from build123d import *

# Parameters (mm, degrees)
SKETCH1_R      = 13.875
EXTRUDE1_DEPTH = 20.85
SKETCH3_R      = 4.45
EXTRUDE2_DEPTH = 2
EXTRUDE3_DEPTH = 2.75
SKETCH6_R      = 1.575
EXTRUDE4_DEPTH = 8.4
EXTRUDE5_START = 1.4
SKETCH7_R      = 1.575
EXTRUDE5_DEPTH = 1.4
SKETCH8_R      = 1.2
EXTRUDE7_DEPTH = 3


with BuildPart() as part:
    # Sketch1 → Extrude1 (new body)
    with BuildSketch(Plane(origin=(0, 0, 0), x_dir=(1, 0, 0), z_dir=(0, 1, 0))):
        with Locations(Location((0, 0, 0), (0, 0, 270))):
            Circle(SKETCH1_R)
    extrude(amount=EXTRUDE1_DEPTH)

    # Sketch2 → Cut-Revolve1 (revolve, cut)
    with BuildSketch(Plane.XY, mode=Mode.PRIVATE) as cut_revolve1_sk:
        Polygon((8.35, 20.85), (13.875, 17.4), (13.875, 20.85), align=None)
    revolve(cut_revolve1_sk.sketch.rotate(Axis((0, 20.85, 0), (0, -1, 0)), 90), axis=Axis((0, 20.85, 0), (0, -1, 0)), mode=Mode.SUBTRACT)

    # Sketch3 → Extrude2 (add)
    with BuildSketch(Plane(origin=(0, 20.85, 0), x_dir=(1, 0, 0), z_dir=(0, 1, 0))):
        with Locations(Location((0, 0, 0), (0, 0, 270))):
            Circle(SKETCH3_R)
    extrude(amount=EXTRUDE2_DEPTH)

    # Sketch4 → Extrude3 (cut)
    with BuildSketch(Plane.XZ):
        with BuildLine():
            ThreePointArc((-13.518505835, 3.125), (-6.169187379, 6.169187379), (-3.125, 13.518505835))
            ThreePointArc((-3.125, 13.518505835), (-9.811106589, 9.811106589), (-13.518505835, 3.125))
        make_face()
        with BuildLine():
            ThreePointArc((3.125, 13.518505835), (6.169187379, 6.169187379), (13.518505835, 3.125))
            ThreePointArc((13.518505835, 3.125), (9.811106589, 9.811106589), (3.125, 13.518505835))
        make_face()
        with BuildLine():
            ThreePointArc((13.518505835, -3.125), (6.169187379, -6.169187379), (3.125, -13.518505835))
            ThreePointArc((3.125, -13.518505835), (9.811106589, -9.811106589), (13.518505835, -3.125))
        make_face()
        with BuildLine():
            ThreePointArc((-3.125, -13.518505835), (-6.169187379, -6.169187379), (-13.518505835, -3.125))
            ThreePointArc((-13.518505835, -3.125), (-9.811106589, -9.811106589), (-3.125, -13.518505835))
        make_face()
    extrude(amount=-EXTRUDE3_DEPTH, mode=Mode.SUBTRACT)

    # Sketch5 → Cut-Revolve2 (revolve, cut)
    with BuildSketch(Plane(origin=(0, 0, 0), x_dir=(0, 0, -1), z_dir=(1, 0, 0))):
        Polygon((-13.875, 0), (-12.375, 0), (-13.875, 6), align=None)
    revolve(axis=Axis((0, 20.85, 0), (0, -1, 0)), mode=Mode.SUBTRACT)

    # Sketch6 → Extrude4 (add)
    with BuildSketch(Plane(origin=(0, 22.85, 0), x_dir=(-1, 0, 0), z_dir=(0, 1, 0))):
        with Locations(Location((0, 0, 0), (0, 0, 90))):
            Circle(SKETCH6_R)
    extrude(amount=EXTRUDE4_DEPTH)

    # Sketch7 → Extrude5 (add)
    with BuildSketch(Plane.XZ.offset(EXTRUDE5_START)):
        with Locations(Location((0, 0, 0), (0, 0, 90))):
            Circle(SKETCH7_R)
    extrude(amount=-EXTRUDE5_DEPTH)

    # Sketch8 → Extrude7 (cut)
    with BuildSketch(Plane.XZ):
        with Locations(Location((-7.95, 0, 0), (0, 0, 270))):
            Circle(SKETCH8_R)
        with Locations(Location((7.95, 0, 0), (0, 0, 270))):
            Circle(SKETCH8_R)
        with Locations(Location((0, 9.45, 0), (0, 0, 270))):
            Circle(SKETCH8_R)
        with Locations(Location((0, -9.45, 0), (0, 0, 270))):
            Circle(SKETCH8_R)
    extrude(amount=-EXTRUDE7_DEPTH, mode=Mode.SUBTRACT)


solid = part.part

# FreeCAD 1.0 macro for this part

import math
import FreeCAD as App
import Part
import Sketcher
from FreeCAD import Vector

doc = App.newDocument("Part")
body = doc.addObject("PartDesign::Body", "Body")

# Sketch on XZ plane
sketch1 = body.newObject("Sketcher::SketchObject", "Sketch")
sketch1.AttachmentSupport = (doc.getObject("XZ_Plane"), [""])
sketch1.MapMode = "FlatFace"
sketch1.addGeometry(Part.Circle(Vector(0, 0, 0), Vector(0, 0, 1), 14), False)
sketch1.addConstraint([
    Sketcher.Constraint("Coincident", 0, 3, -1, 1),
    Sketcher.Constraint("Diameter", 0, 27.75),
])
pad1 = body.newObject("PartDesign::Pad", "Pad")
pad1.Profile = sketch1
pad1.Length = 20.85
pad1.Reversed = True

# Sketch on XY plane
sketch2 = body.newObject("Sketcher::SketchObject", "Sketch001")
sketch2.AttachmentSupport = (doc.getObject("XY_Plane"), [""])
sketch2.MapMode = "FlatFace"
sketch2.addGeometry([
    Part.LineSegment(Vector(8.3, 20.9, 0), Vector(13.9, 17.4, 0)),
    Part.LineSegment(Vector(13.9, 17.4, 0), Vector(13.9, 20.9, 0)),
    Part.LineSegment(Vector(13.9, 20.9, 0), Vector(8.3, 20.9, 0)),
], False)
sketch2.addConstraint([
    Sketcher.Constraint("Coincident", 0, 2, 1, 1),
    Sketcher.Constraint("Coincident", 1, 2, 2, 1),
    Sketcher.Constraint("Coincident", 2, 2, 0, 1),
    Sketcher.Constraint("Vertical", 1),
    Sketcher.Constraint("Horizontal", 2),
    Sketcher.Constraint("DistanceY", 1, 1, 1, 2, 3.45),
    Sketcher.Constraint("DistanceY", -1, 1, 0, 2, 17.4),
    Sketcher.Constraint("DistanceX", 2, 2, 2, 1, 5.525),
    Sketcher.Constraint("DistanceX", -1, 1, 2, 2, 8.35),
])
groove = body.newObject("PartDesign::Groove", "Groove")
groove.Profile = sketch2
groove.ReferenceAxis = (sketch2, ["V_Axis"])
groove.Angle = 360

# Sketch on XZ plane
sketch3 = body.newObject("Sketcher::SketchObject", "Sketch002")
sketch3.AttachmentSupport = (doc.getObject("XZ_Plane"), [""])
sketch3.MapMode = "FlatFace"
sketch3.AttachmentOffset = App.Placement(Vector(0, 0, -20.85), App.Rotation())
sketch3.addGeometry(Part.Circle(Vector(0, 0, 0), Vector(0, 0, 1), 4.5), False)
sketch3.addConstraint([
    Sketcher.Constraint("Coincident", 0, 3, -1, 1),
    Sketcher.Constraint("Diameter", 0, 8.9),
])
pad2 = body.newObject("PartDesign::Pad", "Pad001")
pad2.Profile = sketch3
pad2.Length = 2
pad2.Reversed = True

# Sketch on XZ plane
sketch4 = body.newObject("Sketcher::SketchObject", "Sketch003")
sketch4.AttachmentSupport = (doc.getObject("XZ_Plane"), [""])
sketch4.MapMode = "FlatFace"
sketch4.addGeometry([
    Part.ArcOfCircle(Part.Circle(Vector(-14, 14, 0), Vector(0, 0, 1), 10), math.radians(-90), math.radians(0)),  # 0
    Part.ArcOfCircle(Part.Circle(Vector(0, 0, 0), Vector(0, 0, 1), 14), math.radians(103), math.radians(167)),  # 1
    Part.ArcOfCircle(Part.Circle(Vector(14, 14, 0), Vector(0, 0, 1), 10), math.radians(-180), math.radians(-90)),  # 2
    Part.ArcOfCircle(Part.Circle(Vector(0, 0, 0), Vector(0, 0, 1), 14), math.radians(13), math.radians(77)),  # 3
    Part.ArcOfCircle(Part.Circle(Vector(14, -14, 0), Vector(0, 0, 1), 10), math.radians(90), math.radians(180)),  # 4
    Part.ArcOfCircle(Part.Circle(Vector(0, 0, 0), Vector(0, 0, 1), 14), math.radians(-77), math.radians(-13)),  # 5
    Part.ArcOfCircle(Part.Circle(Vector(-14, -14, 0), Vector(0, 0, 1), 10), math.radians(0), math.radians(90)),  # 6
    Part.ArcOfCircle(Part.Circle(Vector(0, 0, 0), Vector(0, 0, 1), 14), math.radians(-167), math.radians(-103)),  # 7
], False)
sketch4.addConstraint([
    Sketcher.Constraint("Coincident", 0, 1, 1, 2),
    Sketcher.Constraint("Coincident", 1, 1, 0, 2),
    Sketcher.Constraint("Coincident", 2, 1, 3, 2),
    Sketcher.Constraint("Coincident", 3, 1, 2, 2),
    Sketcher.Constraint("Coincident", 4, 1, 5, 2),
    Sketcher.Constraint("Coincident", 5, 1, 4, 2),
    Sketcher.Constraint("Coincident", 6, 1, 7, 2),
    Sketcher.Constraint("Coincident", 7, 1, 6, 2),
    Sketcher.Constraint("Coincident", 1, 3, -1, 1),
    Sketcher.Constraint("Coincident", 3, 3, -1, 1),
    Sketcher.Constraint("Coincident", 5, 3, -1, 1),
    Sketcher.Constraint("Coincident", 7, 3, -1, 1),
    Sketcher.Constraint("Equal", 0, 2),
    Sketcher.Constraint("Equal", 1, 3),
    Sketcher.Constraint("Equal", 2, 4),
    Sketcher.Constraint("Equal", 3, 5),
    Sketcher.Constraint("Equal", 4, 6),
    Sketcher.Constraint("Equal", 5, 7),
    Sketcher.Constraint("Symmetric", 0, 3, 4, 3, -1, 1),
    Sketcher.Constraint("Symmetric", 2, 3, 6, 3, -1, 1),
    Sketcher.Constraint("Symmetric", 0, 3, 2, 3, -2),
    Sketcher.Constraint("Horizontal", 2, 3, 1, 1),
    Sketcher.Constraint("Vertical", 6, 3, 0, 1),
    Sketcher.Constraint("Radius", 1, 13.875),
    Sketcher.Constraint("DistanceX", 1, 1, 2, 1, 6.25),
])
pocket1 = body.newObject("PartDesign::Pocket", "Pocket")
pocket1.Profile = sketch4
pocket1.Length = 2.75

# Sketch on YZ plane
sketch5 = body.newObject("Sketcher::SketchObject", "Sketch004")
sketch5.AttachmentSupport = (doc.getObject("YZ_Plane"), [""])
sketch5.MapMode = "FlatFace"
sketch5.addGeometry([
    Part.LineSegment(Vector(0, 13.9, 0), Vector(0, 12.4, 0)),
    Part.LineSegment(Vector(0, 12.4, 0), Vector(6, 13.9, 0)),
    Part.LineSegment(Vector(6, 13.9, 0), Vector(0, 13.9, 0)),
], False)
sketch5.addConstraint([
    Sketcher.Constraint("Coincident", 0, 2, 1, 1),
    Sketcher.Constraint("Coincident", 1, 2, 2, 1),
    Sketcher.Constraint("Coincident", 2, 2, 0, 1),
    Sketcher.Constraint("Vertical", 0),
    Sketcher.Constraint("Horizontal", 2),
    Sketcher.Constraint("PointOnObject", 0, 2, -2),
    Sketcher.Constraint("DistanceX", 2, 2, 2, 1, 6.0),
    Sketcher.Constraint("DistanceY", 0, 2, 0, 1, 1.5),
    Sketcher.Constraint("DistanceY", -1, 1, 0, 2, 12.375),
])
groove2 = body.newObject("PartDesign::Groove", "Groove001")
groove2.Profile = sketch5
groove2.ReferenceAxis = (sketch5, ["H_Axis"])
groove2.Angle = 360

# Sketch on XZ plane
sketch6 = body.newObject("Sketcher::SketchObject", "Sketch005")
sketch6.AttachmentSupport = (doc.getObject("XZ_Plane"), [""])
sketch6.MapMode = "FlatFace"
sketch6.AttachmentOffset = App.Placement(Vector(0, 0, -22.85), App.Rotation())
sketch6.addGeometry(Part.Circle(Vector(0, 0, 0), Vector(0, 0, 1), 1.6), False)
sketch6.addConstraint([
    Sketcher.Constraint("Coincident", 0, 3, -1, 1),
    Sketcher.Constraint("Diameter", 0, 3.15),
])
pad3 = body.newObject("PartDesign::Pad", "Pad002")
pad3.Profile = sketch6
pad3.Length = 8.4
pad3.Reversed = True

# Sketch on XZ plane
sketch7 = body.newObject("Sketcher::SketchObject", "Sketch006")
sketch7.AttachmentSupport = (doc.getObject("XZ_Plane"), [""])
sketch7.MapMode = "FlatFace"
sketch7.AttachmentOffset = App.Placement(Vector(0, 0, 1.4), App.Rotation())
sketch7.addGeometry(Part.Circle(Vector(0, 0, 0), Vector(0, 0, 1), 1.6), False)
sketch7.addConstraint([
    Sketcher.Constraint("Coincident", 0, 3, -1, 1),
    Sketcher.Constraint("Diameter", 0, 3.15),
])
pad4 = body.newObject("PartDesign::Pad", "Pad003")
pad4.Profile = sketch7
pad4.Length = 1.4
pad4.Reversed = True

# Sketch on XZ plane
sketch8 = body.newObject("Sketcher::SketchObject", "Sketch007")
sketch8.AttachmentSupport = (doc.getObject("XZ_Plane"), [""])
sketch8.MapMode = "FlatFace"
sketch8.addGeometry([
    Part.Circle(Vector(-8, 0, 0), Vector(0, 0, 1), 1.2),
    Part.Circle(Vector(8, 0, 0), Vector(0, 0, 1), 1.2),
    Part.Circle(Vector(0, 9.4, 0), Vector(0, 0, 1), 1.2),
    Part.Circle(Vector(0, -9.4, 0), Vector(0, 0, 1), 1.2),
], False)
sketch8.addConstraint([
    Sketcher.Constraint("Equal", 0, 1),
    Sketcher.Constraint("Equal", 1, 2),
    Sketcher.Constraint("Equal", 2, 3),
    Sketcher.Constraint("Symmetric", 0, 3, 1, 3, -1, 1),
    Sketcher.Constraint("Symmetric", 2, 3, 3, 3, -1, 1),
    Sketcher.Constraint("PointOnObject", 0, 3, -1),
    Sketcher.Constraint("PointOnObject", 2, 3, -2),
    Sketcher.Constraint("Diameter", 0, 2.4),
    Sketcher.Constraint("DistanceX", 0, 3, 1, 3, 15.9),
    Sketcher.Constraint("DistanceY", 3, 3, 2, 3, 18.9),
])
pocket2 = body.newObject("PartDesign::Pocket", "Pocket001")
pocket2.Profile = sketch8
pocket2.Length = 3

doc.recompute()
